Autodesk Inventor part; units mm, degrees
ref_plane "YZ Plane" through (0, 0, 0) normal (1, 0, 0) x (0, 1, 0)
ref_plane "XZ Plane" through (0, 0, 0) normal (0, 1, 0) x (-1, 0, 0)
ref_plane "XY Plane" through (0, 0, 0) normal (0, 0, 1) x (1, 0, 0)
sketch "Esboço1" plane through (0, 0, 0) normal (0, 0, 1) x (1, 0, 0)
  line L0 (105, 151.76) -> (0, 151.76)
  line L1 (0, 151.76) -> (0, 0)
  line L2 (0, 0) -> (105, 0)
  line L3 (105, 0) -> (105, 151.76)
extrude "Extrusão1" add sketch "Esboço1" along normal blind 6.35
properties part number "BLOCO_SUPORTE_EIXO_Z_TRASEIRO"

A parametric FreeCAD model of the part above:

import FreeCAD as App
import Part
import Sketcher

V = App.Vector
Q = App.Units.Quantity


def add_polygon(sketch, points):
    """Adds a closed chain of lines whose ends are joined by coincident constraints."""
    first, n = sketch.GeometryCount, len(points)
    for a, b in zip(points, points[1:] + points[:1]):
        sketch.addGeometry(Part.LineSegment(App.Vector(*a, 0), App.Vector(*b, 0)), False)
    for i in range(n):
        sketch.addConstraint(Sketcher.Constraint("Coincident", first + i, 2, first + (i + 1) % n, 1))

doc = App.newDocument("Part")
body = doc.addObject("PartDesign::Body", "Body")

# Sketch on XY plane
sketch1 = body.newObject("Sketcher::SketchObject", "Sketch")
sketch1.AttachmentSupport = (doc.getObject("XY_Plane"), [""])
sketch1.MapMode = "FlatFace"
add_polygon(sketch1, [(105, 0), (105, 152), (0, 152), (0, 0)])  # lines 0-3
sketch1.addConstraint([
    Sketcher.Constraint("Vertical", 0),
    Sketcher.Constraint("Horizontal", 1),
    Sketcher.Constraint("Vertical", 2),
    Sketcher.Constraint("Horizontal", 3),
    Sketcher.Constraint("Coincident", 2, 2, -1, 1),
    Sketcher.Constraint("DistanceX", 1, 2, 1, 1, Q("105 mm")),
    Sketcher.Constraint("DistanceY", 0, 1, 0, 2, Q("151.76 mm")),
])
pad1 = body.newObject("PartDesign::Pad", "Pad")
pad1.Profile = sketch1
pad1.Length = 6.35

doc.recompute()
